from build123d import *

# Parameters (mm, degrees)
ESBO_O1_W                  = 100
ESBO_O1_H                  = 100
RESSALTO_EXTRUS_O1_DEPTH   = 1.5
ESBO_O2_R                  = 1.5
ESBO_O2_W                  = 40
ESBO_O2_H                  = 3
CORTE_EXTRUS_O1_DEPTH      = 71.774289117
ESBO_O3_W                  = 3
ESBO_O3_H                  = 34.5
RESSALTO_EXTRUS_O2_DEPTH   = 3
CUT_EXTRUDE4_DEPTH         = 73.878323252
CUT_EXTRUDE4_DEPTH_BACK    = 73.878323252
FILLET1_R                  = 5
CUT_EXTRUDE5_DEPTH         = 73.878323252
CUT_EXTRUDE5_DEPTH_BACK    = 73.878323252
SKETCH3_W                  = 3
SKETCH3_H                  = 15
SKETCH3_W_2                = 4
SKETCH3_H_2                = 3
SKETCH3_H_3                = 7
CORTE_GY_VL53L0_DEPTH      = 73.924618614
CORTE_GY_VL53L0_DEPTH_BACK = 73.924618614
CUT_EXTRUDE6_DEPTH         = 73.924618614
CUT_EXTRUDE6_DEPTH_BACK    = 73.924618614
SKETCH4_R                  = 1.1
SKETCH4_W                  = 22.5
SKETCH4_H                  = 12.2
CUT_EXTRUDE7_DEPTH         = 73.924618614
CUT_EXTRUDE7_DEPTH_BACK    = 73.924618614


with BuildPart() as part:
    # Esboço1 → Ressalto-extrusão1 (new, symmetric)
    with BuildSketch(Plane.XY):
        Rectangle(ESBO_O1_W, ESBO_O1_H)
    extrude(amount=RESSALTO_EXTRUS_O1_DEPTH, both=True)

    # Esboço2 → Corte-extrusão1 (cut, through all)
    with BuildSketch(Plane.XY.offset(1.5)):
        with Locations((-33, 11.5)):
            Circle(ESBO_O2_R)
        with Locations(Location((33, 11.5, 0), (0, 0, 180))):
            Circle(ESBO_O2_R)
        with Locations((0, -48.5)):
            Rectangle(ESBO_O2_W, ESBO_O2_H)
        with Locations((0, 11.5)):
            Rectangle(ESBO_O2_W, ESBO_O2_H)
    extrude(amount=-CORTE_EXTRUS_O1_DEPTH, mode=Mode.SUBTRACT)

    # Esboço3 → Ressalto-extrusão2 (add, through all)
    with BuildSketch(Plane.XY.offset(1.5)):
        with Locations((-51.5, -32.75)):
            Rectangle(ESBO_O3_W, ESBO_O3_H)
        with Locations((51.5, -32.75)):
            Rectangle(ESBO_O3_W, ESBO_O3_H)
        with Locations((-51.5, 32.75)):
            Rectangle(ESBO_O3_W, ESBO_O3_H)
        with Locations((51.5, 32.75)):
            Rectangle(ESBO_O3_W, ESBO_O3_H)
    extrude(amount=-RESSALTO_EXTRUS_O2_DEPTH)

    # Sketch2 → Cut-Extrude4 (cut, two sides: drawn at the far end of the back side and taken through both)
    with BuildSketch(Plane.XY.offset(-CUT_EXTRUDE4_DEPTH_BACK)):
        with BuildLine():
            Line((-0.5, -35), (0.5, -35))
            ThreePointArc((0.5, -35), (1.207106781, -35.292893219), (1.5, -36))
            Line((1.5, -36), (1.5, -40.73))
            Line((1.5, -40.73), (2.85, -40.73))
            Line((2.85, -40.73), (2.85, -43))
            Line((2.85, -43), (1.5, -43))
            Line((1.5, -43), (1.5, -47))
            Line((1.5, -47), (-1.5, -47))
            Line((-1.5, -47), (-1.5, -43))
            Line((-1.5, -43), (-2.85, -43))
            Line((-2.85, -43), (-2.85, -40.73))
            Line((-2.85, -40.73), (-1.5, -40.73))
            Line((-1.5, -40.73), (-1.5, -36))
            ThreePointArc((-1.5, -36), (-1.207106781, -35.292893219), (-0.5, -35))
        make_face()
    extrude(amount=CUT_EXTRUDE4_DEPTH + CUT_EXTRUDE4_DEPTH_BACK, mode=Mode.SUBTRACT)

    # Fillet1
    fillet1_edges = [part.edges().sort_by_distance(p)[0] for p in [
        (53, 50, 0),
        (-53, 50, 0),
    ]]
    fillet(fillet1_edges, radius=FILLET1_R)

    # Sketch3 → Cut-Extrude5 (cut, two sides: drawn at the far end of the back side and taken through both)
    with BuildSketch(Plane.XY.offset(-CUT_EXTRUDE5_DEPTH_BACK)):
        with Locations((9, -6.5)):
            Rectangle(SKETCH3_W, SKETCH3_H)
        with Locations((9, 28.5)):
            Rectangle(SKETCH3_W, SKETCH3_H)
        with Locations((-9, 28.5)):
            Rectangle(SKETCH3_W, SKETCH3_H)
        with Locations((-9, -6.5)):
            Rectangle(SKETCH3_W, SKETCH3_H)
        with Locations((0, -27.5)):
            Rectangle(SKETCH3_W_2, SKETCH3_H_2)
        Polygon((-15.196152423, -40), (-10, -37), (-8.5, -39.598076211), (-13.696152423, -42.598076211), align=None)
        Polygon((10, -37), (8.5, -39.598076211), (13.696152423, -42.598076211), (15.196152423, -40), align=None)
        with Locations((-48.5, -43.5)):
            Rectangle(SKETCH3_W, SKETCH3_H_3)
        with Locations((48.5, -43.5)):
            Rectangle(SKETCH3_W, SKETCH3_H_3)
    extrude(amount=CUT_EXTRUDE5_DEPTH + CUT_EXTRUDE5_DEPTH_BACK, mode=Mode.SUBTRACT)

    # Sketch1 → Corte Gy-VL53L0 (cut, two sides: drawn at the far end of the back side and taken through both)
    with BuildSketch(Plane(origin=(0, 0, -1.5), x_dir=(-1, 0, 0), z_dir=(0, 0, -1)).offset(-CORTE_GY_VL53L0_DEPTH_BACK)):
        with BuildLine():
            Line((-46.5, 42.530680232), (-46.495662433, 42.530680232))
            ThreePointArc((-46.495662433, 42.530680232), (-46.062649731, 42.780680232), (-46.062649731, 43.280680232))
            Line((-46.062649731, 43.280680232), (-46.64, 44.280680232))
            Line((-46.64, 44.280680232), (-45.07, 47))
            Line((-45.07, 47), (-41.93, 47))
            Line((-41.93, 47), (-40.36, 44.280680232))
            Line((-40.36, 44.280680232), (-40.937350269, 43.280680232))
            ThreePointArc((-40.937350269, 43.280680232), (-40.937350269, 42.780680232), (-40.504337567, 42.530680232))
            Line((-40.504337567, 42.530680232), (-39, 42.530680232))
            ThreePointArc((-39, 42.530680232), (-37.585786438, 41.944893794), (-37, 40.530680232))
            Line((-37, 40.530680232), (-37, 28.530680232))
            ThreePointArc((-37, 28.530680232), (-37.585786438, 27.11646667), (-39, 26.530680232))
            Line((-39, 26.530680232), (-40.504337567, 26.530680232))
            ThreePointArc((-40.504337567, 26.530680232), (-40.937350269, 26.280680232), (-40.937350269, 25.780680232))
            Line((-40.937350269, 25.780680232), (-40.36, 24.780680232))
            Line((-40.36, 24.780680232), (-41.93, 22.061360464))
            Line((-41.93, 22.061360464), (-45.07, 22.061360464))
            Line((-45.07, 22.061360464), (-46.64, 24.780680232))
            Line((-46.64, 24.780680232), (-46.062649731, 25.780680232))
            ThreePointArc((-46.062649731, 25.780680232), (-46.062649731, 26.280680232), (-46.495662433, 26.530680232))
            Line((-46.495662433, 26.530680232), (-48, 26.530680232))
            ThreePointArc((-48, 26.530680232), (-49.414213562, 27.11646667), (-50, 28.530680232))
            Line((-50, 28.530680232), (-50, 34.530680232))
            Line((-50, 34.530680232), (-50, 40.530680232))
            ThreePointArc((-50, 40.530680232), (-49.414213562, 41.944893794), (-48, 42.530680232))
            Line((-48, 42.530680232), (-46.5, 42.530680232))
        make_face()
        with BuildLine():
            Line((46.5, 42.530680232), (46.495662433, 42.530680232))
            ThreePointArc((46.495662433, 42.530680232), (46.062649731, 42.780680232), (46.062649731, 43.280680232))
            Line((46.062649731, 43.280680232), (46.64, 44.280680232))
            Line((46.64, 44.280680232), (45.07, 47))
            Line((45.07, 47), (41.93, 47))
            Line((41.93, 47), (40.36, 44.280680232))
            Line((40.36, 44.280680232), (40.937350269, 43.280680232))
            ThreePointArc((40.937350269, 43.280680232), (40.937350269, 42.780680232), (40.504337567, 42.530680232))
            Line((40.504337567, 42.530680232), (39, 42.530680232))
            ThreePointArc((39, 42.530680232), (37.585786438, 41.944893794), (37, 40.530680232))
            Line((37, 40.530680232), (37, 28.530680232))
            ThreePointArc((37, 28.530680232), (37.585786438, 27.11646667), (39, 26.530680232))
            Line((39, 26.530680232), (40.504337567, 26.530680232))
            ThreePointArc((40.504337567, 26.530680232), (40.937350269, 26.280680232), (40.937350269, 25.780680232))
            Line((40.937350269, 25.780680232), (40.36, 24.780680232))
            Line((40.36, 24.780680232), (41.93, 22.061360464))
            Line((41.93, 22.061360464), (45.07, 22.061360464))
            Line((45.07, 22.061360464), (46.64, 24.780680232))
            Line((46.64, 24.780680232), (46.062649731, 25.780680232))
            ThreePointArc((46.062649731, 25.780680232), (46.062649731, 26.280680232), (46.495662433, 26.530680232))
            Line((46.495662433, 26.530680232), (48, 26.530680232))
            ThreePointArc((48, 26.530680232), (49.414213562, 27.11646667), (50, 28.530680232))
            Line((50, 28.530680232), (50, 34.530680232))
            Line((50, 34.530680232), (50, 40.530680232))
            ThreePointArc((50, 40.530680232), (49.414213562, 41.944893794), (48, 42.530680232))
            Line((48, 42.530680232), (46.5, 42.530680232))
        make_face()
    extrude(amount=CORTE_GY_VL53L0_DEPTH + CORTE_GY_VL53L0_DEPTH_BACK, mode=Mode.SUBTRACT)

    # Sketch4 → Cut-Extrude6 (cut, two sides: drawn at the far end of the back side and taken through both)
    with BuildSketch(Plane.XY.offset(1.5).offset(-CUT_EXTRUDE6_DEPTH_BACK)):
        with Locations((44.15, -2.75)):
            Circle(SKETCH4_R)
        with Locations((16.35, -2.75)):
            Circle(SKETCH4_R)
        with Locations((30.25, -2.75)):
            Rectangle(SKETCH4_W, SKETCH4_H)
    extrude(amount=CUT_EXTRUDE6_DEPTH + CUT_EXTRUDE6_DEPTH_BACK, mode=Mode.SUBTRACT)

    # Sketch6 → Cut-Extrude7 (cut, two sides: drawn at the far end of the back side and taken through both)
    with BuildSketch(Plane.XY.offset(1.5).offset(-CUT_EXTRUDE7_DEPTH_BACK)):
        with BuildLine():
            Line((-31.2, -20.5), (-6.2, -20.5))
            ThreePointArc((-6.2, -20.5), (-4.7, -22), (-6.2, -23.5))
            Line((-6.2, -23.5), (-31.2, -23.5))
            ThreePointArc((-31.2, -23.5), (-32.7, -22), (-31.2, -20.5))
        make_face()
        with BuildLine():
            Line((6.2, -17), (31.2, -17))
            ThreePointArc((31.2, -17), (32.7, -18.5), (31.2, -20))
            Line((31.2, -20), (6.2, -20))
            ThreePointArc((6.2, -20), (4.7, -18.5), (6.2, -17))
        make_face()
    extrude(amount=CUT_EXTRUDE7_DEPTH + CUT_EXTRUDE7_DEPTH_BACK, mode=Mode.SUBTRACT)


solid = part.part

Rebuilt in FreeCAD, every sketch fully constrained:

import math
import FreeCAD as App
import Part
import Sketcher
Q = App.Units.Quantity


def edges_at(feature, points):
    """Names of the edges that pass closest to the given points."""
    edges = feature.Shape.Edges
    near = lambda p: min(range(len(edges)), key=lambda i: edges[i].distToShape(Part.Vertex(*p))[0])
    return sorted({f"Edge{near(p) + 1}" for p in points})


def add_polygon(sketch, points):
    """Adds a closed chain of lines whose ends are joined by coincident constraints."""
    first, n = sketch.GeometryCount, len(points)
    for a, b in zip(points, points[1:] + points[:1]):
        sketch.addGeometry(Part.LineSegment(App.Vector(*a, 0), App.Vector(*b, 0)), False)
    for i in range(n):
        sketch.addConstraint(Sketcher.Constraint("Coincident", first + i, 2, first + (i + 1) % n, 1))

doc = App.newDocument("Part")
body = doc.addObject("PartDesign::Body", "Body")

sketch1 = doc.addObject("Sketcher::SketchObject", "Sketch")
body.addObject(sketch1)
sketch1.AttachmentSupport = (doc.XY_Plane, [""])
sketch1.MapMode = "FlatFace"
add_polygon(sketch1, [(-50, 50), (-50, -50), (50, -50), (50, 50)])
sketch1.addConstraint([
    Sketcher.Constraint("Vertical", 0),
    Sketcher.Constraint("Horizontal", 1),
    Sketcher.Constraint("Vertical", 2),
    Sketcher.Constraint("Horizontal", 3),
    Sketcher.Constraint("Symmetric", 0, 2, 2, 2, -1, 1),
    Sketcher.Constraint("Equal", 3, 0),
    Sketcher.Constraint("DistanceX", 1, 1, 1, 2, 100.0),
])
pad1 = doc.addObject("PartDesign::Pad", "Pad")
body.addObject(pad1)
pad1.Profile = sketch1
pad1.Length = 3
pad1.Midplane = True

sketch2 = doc.addObject("Sketcher::SketchObject", "Sketch001")
body.addObject(sketch2)
sketch2.AttachmentSupport = (doc.XY_Plane, [""])
sketch2.MapMode = "FlatFace"
sketch2.AttachmentOffset = App.Placement(App.Vector(0, 0, 1.5), App.Rotation())
sketch2.addGeometry(Part.Circle(App.Vector(-33, 11.5, 0), App.Vector(0, 0, 1), 1.5), False)
sketch2.addGeometry(Part.Circle(App.Vector(33, 11.5, 0), App.Vector(0, 0, 1), 1.5), False)
add_polygon(sketch2, [(-20, -47), (-20, -50), (20, -50), (20, -47)])
add_polygon(sketch2, [(-20, 13), (-20, 10), (20, 10), (20, 13)])
sketch2.addConstraint([
    Sketcher.Constraint("Vertical", 2),
    Sketcher.Constraint("Horizontal", 3),
    Sketcher.Constraint("Vertical", 4),
    Sketcher.Constraint("Horizontal", 5),
    Sketcher.Constraint("Vertical", 6),
    Sketcher.Constraint("Horizontal", 7),
    Sketcher.Constraint("Vertical", 8),
    Sketcher.Constraint("Horizontal", 9),
    Sketcher.Constraint("Equal", 0, 1),
    Sketcher.Constraint("Symmetric", 0, 3, 1, 3, -2),
    Sketcher.Constraint("Vertical", 5, 2, 6, 2),
    Sketcher.Constraint("Vertical", 4, 2, 7, 2),
    Sketcher.Constraint("Equal", 4, 6),
    Sketcher.Constraint("Diameter", 0, 3.0),
    Sketcher.Constraint("DistanceX", 3, 1, 3, 2, 40.0),
    Sketcher.Constraint("DistanceY", 2, 2, 2, 1, 3.0),
    Sketcher.Constraint("DistanceX", 0, 3, -1, 1, 33.0),
    Sketcher.Constraint("DistanceX", 2, 2, -1, 1, 20.0),
    Sketcher.Constraint("DistanceY", 2, 2, -1, 1, 50.0),
    Sketcher.Constraint("DistanceY", -1, 1, 6, 2, 10.0),
    Sketcher.Constraint("DistanceY", -1, 1, 0, 3, 11.5),
])
pocket1 = doc.addObject("PartDesign::Pocket", "Pocket")
body.addObject(pocket1)
pocket1.Profile = sketch2
pocket1.Type = "ThroughAll"

sketch3 = doc.addObject("Sketcher::SketchObject", "Sketch002")
body.addObject(sketch3)
sketch3.AttachmentSupport = (doc.XY_Plane, [""])
sketch3.MapMode = "FlatFace"
sketch3.AttachmentOffset = App.Placement(App.Vector(0, 0, 1.5), App.Rotation())
add_polygon(sketch3, [(-53, -15.5), (-53, -50), (-50, -50), (-50, -15.5)])
add_polygon(sketch3, [(50, -15.5), (50, -50), (53, -50), (53, -15.5)])
add_polygon(sketch3, [(-53, 50), (-53, 15.5), (-50, 15.5), (-50, 50)])
add_polygon(sketch3, [(50, 50), (50, 15.5), (53, 15.5), (53, 50)])
sketch3.addConstraint([
    Sketcher.Constraint("Vertical", 0),
    Sketcher.Constraint("Horizontal", 1),
    Sketcher.Constraint("Vertical", 2),
    Sketcher.Constraint("Horizontal", 3),
    Sketcher.Constraint("Vertical", 4),
    Sketcher.Constraint("Horizontal", 5),
    Sketcher.Constraint("Vertical", 6),
    Sketcher.Constraint("Horizontal", 7),
    Sketcher.Constraint("Vertical", 8),
    Sketcher.Constraint("Horizontal", 9),
    Sketcher.Constraint("Vertical", 10),
    Sketcher.Constraint("Horizontal", 11),
    Sketcher.Constraint("Vertical", 12),
    Sketcher.Constraint("Horizontal", 13),
    Sketcher.Constraint("Vertical", 14),
    Sketcher.Constraint("Horizontal", 15),
    Sketcher.Constraint("Symmetric", 6, 2, 8, 2, -1, 1),
    Sketcher.Constraint("Symmetric", 4, 2, 10, 2, -1, 1),
    Sketcher.Constraint("Symmetric", 2, 2, 12, 2, -1, 1),
    Sketcher.Constraint("Symmetric", 0, 2, 14, 2, -1, 1),
    Sketcher.Constraint("Symmetric", 1, 2, 4, 2, -2),
    Sketcher.Constraint("Symmetric", 3, 2, 6, 2, -2),
    Sketcher.Constraint("DistanceX", 1, 1, 1, 2, 3.0),
    Sketcher.Constraint("DistanceY", 0, 2, 0, 1, 34.5),
    Sketcher.Constraint("DistanceX", 0, 2, -1, 1, 53.0),
    Sketcher.Constraint("DistanceY", 0, 2, -1, 1, 50.0),
])
pad2 = doc.addObject("PartDesign::Pad", "Pad001")
body.addObject(pad2)
pad2.Profile = sketch3
pad2.Type = "UpToLast"
pad2.Reversed = True

sketch4 = doc.addObject("Sketcher::SketchObject", "Sketch003")
body.addObject(sketch4)
sketch4.AttachmentSupport = (doc.XY_Plane, [""])
sketch4.MapMode = "FlatFace"
sketch4.addGeometry([
    Part.LineSegment(App.Vector(0.5, -35, 0), App.Vector(-0.5, -35, 0)),
    Part.ArcOfCircle(Part.Circle(App.Vector(-0.5, -36, 0), App.Vector(0, 0, 1), 1), math.radians(90), math.radians(180)),
    Part.LineSegment(App.Vector(-1.5, -36, 0), App.Vector(-1.5, -40.7, 0)),
    Part.LineSegment(App.Vector(-1.5, -40.7, 0), App.Vector(-2.9, -40.7, 0)),
    Part.LineSegment(App.Vector(-2.9, -40.7, 0), App.Vector(-2.9, -43, 0)),
    Part.LineSegment(App.Vector(-2.9, -43, 0), App.Vector(-1.5, -43, 0)),
    Part.LineSegment(App.Vector(-1.5, -43, 0), App.Vector(-1.5, -47, 0)),
    Part.LineSegment(App.Vector(-1.5, -47, 0), App.Vector(1.5, -47, 0)),
    Part.LineSegment(App.Vector(1.5, -47, 0), App.Vector(1.5, -43, 0)),
    Part.LineSegment(App.Vector(1.5, -43, 0), App.Vector(2.9, -43, 0)),
    Part.LineSegment(App.Vector(2.9, -43, 0), App.Vector(2.9, -40.7, 0)),
    Part.LineSegment(App.Vector(2.9, -40.7, 0), App.Vector(1.5, -40.7, 0)),
    Part.LineSegment(App.Vector(1.5, -40.7, 0), App.Vector(1.5, -36, 0)),
    Part.ArcOfCircle(Part.Circle(App.Vector(0.5, -36, 0), App.Vector(0, 0, 1), 1), math.radians(0), math.radians(90)),
], False)
sketch4.addConstraint([
    Sketcher.Constraint("Tangent", 0, 2, 1, 1),
    Sketcher.Constraint("Tangent", 1, 2, 2, 1),
    Sketcher.Constraint("Coincident", 2, 2, 3, 1),
    Sketcher.Constraint("Coincident", 3, 2, 4, 1),
    Sketcher.Constraint("Coincident", 4, 2, 5, 1),
    Sketcher.Constraint("Coincident", 5, 2, 6, 1),
    Sketcher.Constraint("Coincident", 6, 2, 7, 1),
    Sketcher.Constraint("Coincident", 7, 2, 8, 1),
    Sketcher.Constraint("Coincident", 8, 2, 9, 1),
    Sketcher.Constraint("Coincident", 9, 2, 10, 1),
    Sketcher.Constraint("Coincident", 10, 2, 11, 1),
    Sketcher.Constraint("Coincident", 11, 2, 12, 1),
    Sketcher.Constraint("Tangent", 12, 2, 13, 1),
    Sketcher.Constraint("Tangent", 13, 2, 0, 1),
    Sketcher.Constraint("Horizontal", 0),
    Sketcher.Constraint("Vertical", 2),
    Sketcher.Constraint("Horizontal", 3),
    Sketcher.Constraint("Vertical", 4),
    Sketcher.Constraint("Horizontal", 5),
    Sketcher.Constraint("Vertical", 6),
    Sketcher.Constraint("Horizontal", 7),
    Sketcher.Constraint("Vertical", 8),
    Sketcher.Constraint("Horizontal", 9),
    Sketcher.Constraint("Vertical", 10),
    Sketcher.Constraint("Horizontal", 11),
    Sketcher.Constraint("Vertical", 12),
    Sketcher.Constraint("Equal", 1, 13),
    Sketcher.Constraint("Symmetric", 5, 2, 8, 2, -2),
    Sketcher.Constraint("Symmetric", 3, 2, 10, 2, -2),
    Sketcher.Constraint("Vertical", 2, 2, 5, 2),
    Sketcher.Constraint("Vertical", 8, 2, 11, 2),
    Sketcher.Constraint("Radius", 1, 1.0),
    Sketcher.Constraint("DistanceX", 0, 2, 0, 1, 1.0),
    Sketcher.Constraint("DistanceY", 6, 2, 6, 1, 4.0),
    Sketcher.Constraint("DistanceY", 1, 3, -1, 1, 36.0),
    Sketcher.Constraint("DistanceY", 4, 2, -1, 1, 43.0),
    Sketcher.Constraint("DistanceX", 3, 2, 3, 1, 1.35),
    Sketcher.Constraint("DistanceY", 2, 2, 2, 1, 4.73),
])
pocket2 = doc.addObject("PartDesign::Pocket", "Pocket001")
body.addObject(pocket2)
pocket2.Profile = sketch4
pocket2.Type = "ThroughAll"
pocket2.Midplane = True
doc.recompute()

fillet = doc.addObject("PartDesign::Fillet", "Fillet")
body.addObject(fillet)
fillet.Base = (pocket2, edges_at(pocket2, [(53, 50, 0), (-53, 50, 0)]))
fillet.Radius = 5

sketch5 = doc.addObject("Sketcher::SketchObject", "Sketch004")
body.addObject(sketch5)
sketch5.AttachmentSupport = (doc.XY_Plane, [""])
sketch5.MapMode = "FlatFace"
add_polygon(sketch5, [(7.5, 1), (7.5, -14), (10.5, -14), (10.5, 1)])
add_polygon(sketch5, [(7.5, 36), (7.5, 21), (10.5, 21), (10.5, 36)])
add_polygon(sketch5, [(-10.5, 36), (-10.5, 21), (-7.5, 21), (-7.5, 36)])
add_polygon(sketch5, [(-10.5, 1), (-10.5, -14), (-7.5, -14), (-7.5, 1)])
add_polygon(sketch5, [(-2, -26), (-2, -29), (2, -29), (2, -26)])
add_polygon(sketch5, [(-10, -37), (-15.2, -40), (-13.7, -42.6), (-8.5, -39.6)])
add_polygon(sketch5, [(10, -37), (8.5, -39.6), (13.7, -42.6), (15.2, -40)])
add_polygon(sketch5, [(-50, -40), (-50, -47), (-47, -47), (-47, -40)])
add_polygon(sketch5, [(47, -40), (47, -47), (50, -47), (50, -40)])
sketch5.addConstraint([
    Sketcher.Constraint("Vertical", 0),
    Sketcher.Constraint("Horizontal", 1),
    Sketcher.Constraint("Vertical", 2),
    Sketcher.Constraint("Horizontal", 3),
    Sketcher.Constraint("Vertical", 4),
    Sketcher.Constraint("Horizontal", 5),
    Sketcher.Constraint("Vertical", 6),
    Sketcher.Constraint("Horizontal", 7),
    Sketcher.Constraint("Vertical", 8),
    Sketcher.Constraint("Horizontal", 9),
    Sketcher.Constraint("Vertical", 10),
    Sketcher.Constraint("Horizontal", 11),
    Sketcher.Constraint("Vertical", 12),
    Sketcher.Constraint("Horizontal", 13),
    Sketcher.Constraint("Vertical", 14),
    Sketcher.Constraint("Horizontal", 15),
    Sketcher.Constraint("Vertical", 16),
    Sketcher.Constraint("Horizontal", 17),
    Sketcher.Constraint("Vertical", 18),
    Sketcher.Constraint("Horizontal", 19),
    Sketcher.Constraint("Vertical", 28),
    Sketcher.Constraint("Horizontal", 29),
    Sketcher.Constraint("Vertical", 30),
    Sketcher.Constraint("Horizontal", 31),
    Sketcher.Constraint("Vertical", 32),
    Sketcher.Constraint("Horizontal", 33),
    Sketcher.Constraint("Vertical", 34),
    Sketcher.Constraint("Horizontal", 35),
    Sketcher.Constraint("Symmetric", 5, 2, 8, 2, -2),
    Sketcher.Constraint("Symmetric", 7, 2, 10, 2, -2),
    Sketcher.Constraint("Symmetric", 1, 2, 12, 2, -2),
    Sketcher.Constraint("Symmetric", 3, 2, 14, 2, -2),
    Sketcher.Constraint("Symmetric", 22, 2, 24, 2, -2),
    Sketcher.Constraint("Symmetric", 21, 2, 25, 2, -2),
    Sketcher.Constraint("Symmetric", 20, 2, 26, 2, -2),
    Sketcher.Constraint("Symmetric", 23, 2, 27, 2, -2),
    Sketcher.Constraint("Symmetric", 29, 2, 32, 2, -2),
    Sketcher.Constraint("Symmetric", 31, 2, 34, 2, -2),
    Sketcher.Constraint("Perpendicular", 20, 21),
    Sketcher.Constraint("Perpendicular", 21, 22),
    Sketcher.Constraint("Perpendicular", 22, 23),
    Sketcher.Constraint("Horizontal", 26, 2, 30, 2),
    Sketcher.Constraint("Vertical", 3, 2, 4, 2),
    Sketcher.Constraint("Vertical", 2, 2, 5, 2),
    Sketcher.Constraint("Equal", 15, 29),
    Sketcher.Constraint("Equal", 2, 4),
    Sketcher.Constraint("Equal", 35, 16),
    Sketcher.Constraint("DistanceX", 1, 1, 1, 2, 3.0),
    Sketcher.Constraint("DistanceX", 17, 1, 17, 2, 4.0),
    Sketcher.Constraint("DistanceY", 0, 2, 0, 1, 15.0),
    Sketcher.Constraint("DistanceY", 28, 2, 28, 1, 7.0),
    Sketcher.Constraint("Angle", 20, Q("-150 deg")),
    Sketcher.Constraint("Distance", 20, 6.0),
    Sketcher.Constraint("Distance", 21, 3.0),
    Sketcher.Constraint("DistanceY", 0, 2, -1, 1, 14.0),
    Sketcher.Constraint("DistanceY", -1, 1, 4, 2, 21.0),
    Sketcher.Constraint("DistanceX", 16, 2, -1, 1, 2.0),
    Sketcher.Constraint("DistanceY", 16, 2, -1, 1, 29.0),
    Sketcher.Constraint("DistanceY", 20, 2, -1, 1, 40.0),
    Sketcher.Constraint("DistanceX", 23, 2, -1, 1, 10.0),
    Sketcher.Constraint("DistanceX", 28, 2, -1, 1, 50.0),
    Sketcher.Constraint("DistanceX", 8, 2, 4, 2, 18.0),
])
pocket3 = doc.addObject("PartDesign::Pocket", "Pocket002")
body.addObject(pocket3)
pocket3.Profile = sketch5
pocket3.Type = "ThroughAll"
pocket3.Midplane = True

sketch6 = doc.addObject("Sketcher::SketchObject", "Sketch005")
body.addObject(sketch6)
sketch6.AttachmentSupport = (doc.XY_Plane, [""])
sketch6.MapMode = "FlatFace"
sketch6.AttachmentOffset = App.Placement(App.Vector(0, 0, -1.5), App.Rotation())
sketch6.addGeometry([
    Part.ArcOfCircle(Part.Circle(App.Vector(46.5, 43, 0), App.Vector(0, 0, 1), 0.5), math.radians(150), math.radians(270)),
    Part.LineSegment(App.Vector(46.5, 42.5, 0), App.Vector(48, 42.5, 0)),
    Part.ArcOfCircle(Part.Circle(App.Vector(48, 40.5, 0), App.Vector(0, 0, 1), 2), math.radians(0), math.radians(90)),
    Part.LineSegment(App.Vector(50, 40.5, 0), App.Vector(50, 28.5, 0)),
    Part.ArcOfCircle(Part.Circle(App.Vector(48, 28.5, 0), App.Vector(0, 0, 1), 2), math.radians(-90), math.radians(0)),
    Part.LineSegment(App.Vector(48, 26.5, 0), App.Vector(46.5, 26.5, 0)),
    Part.ArcOfCircle(Part.Circle(App.Vector(46.5, 26, 0), App.Vector(0, 0, 1), 0.5), math.radians(90), math.radians(210)),
    Part.LineSegment(App.Vector(46.1, 25.8, 0), App.Vector(46.6, 24.8, 0)),
    Part.LineSegment(App.Vector(46.6, 24.8, 0), App.Vector(45.1, 22.1, 0)),
    Part.LineSegment(App.Vector(45.1, 22.1, 0), App.Vector(41.9, 22.1, 0)),
    Part.LineSegment(App.Vector(41.9, 22.1, 0), App.Vector(40.4, 24.8, 0)),
    Part.LineSegment(App.Vector(40.4, 24.8, 0), App.Vector(40.9, 25.8, 0)),
    Part.ArcOfCircle(Part.Circle(App.Vector(40.5, 26, 0), App.Vector(0, 0, 1), 0.5), math.radians(-30), math.radians(90)),
    Part.LineSegment(App.Vector(40.5, 26.5, 0), App.Vector(39, 26.5, 0)),
    Part.ArcOfCircle(Part.Circle(App.Vector(39, 28.5, 0), App.Vector(0, 0, 1), 2), math.radians(-180), math.radians(-90)),
    Part.LineSegment(App.Vector(37, 28.5, 0), App.Vector(37, 40.5, 0)),
    Part.ArcOfCircle(Part.Circle(App.Vector(39, 40.5, 0), App.Vector(0, 0, 1), 2), math.radians(90), math.radians(180)),
    Part.LineSegment(App.Vector(39, 42.5, 0), App.Vector(40.5, 42.5, 0)),
    Part.ArcOfCircle(Part.Circle(App.Vector(40.5, 43, 0), App.Vector(0, 0, 1), 0.5), math.radians(-90), math.radians(30)),
    Part.LineSegment(App.Vector(40.9, 43.3, 0), App.Vector(40.4, 44.3, 0)),
    Part.LineSegment(App.Vector(40.4, 44.3, 0), App.Vector(41.9, 47, 0)),
    Part.LineSegment(App.Vector(41.9, 47, 0), App.Vector(45.1, 47, 0)),
    Part.LineSegment(App.Vector(45.1, 47, 0), App.Vector(46.6, 44.3, 0)),
    Part.LineSegment(App.Vector(46.6, 44.3, 0), App.Vector(46.1, 43.3, 0)),
    Part.ArcOfCircle(Part.Circle(App.Vector(-46.5, 43, 0), App.Vector(0, 0, 1), 0.5), math.radians(-90), math.radians(30)),
    Part.LineSegment(App.Vector(-46.1, 43.3, 0), App.Vector(-46.6, 44.3, 0)),
    Part.LineSegment(App.Vector(-46.6, 44.3, 0), App.Vector(-45.1, 47, 0)),
    Part.LineSegment(App.Vector(-45.1, 47, 0), App.Vector(-41.9, 47, 0)),
    Part.LineSegment(App.Vector(-41.9, 47, 0), App.Vector(-40.4, 44.3, 0)),
    Part.LineSegment(App.Vector(-40.4, 44.3, 0), App.Vector(-40.9, 43.3, 0)),
    Part.ArcOfCircle(Part.Circle(App.Vector(-40.5, 43, 0), App.Vector(0, 0, 1), 0.5), math.radians(150), math.radians(270)),
    Part.LineSegment(App.Vector(-40.5, 42.5, 0), App.Vector(-39, 42.5, 0)),
    Part.ArcOfCircle(Part.Circle(App.Vector(-39, 40.5, 0), App.Vector(0, 0, 1), 2), math.radians(0), math.radians(90)),
    Part.LineSegment(App.Vector(-37, 40.5, 0), App.Vector(-37, 28.5, 0)),
    Part.ArcOfCircle(Part.Circle(App.Vector(-39, 28.5, 0), App.Vector(0, 0, 1), 2), math.radians(-90), math.radians(0)),
    Part.LineSegment(App.Vector(-39, 26.5, 0), App.Vector(-40.5, 26.5, 0)),
    Part.ArcOfCircle(Part.Circle(App.Vector(-40.5, 26, 0), App.Vector(0, 0, 1), 0.5), math.radians(90), math.radians(210)),
    Part.LineSegment(App.Vector(-40.9, 25.8, 0), App.Vector(-40.4, 24.8, 0)),
    Part.LineSegment(App.Vector(-40.4, 24.8, 0), App.Vector(-41.9, 22.1, 0)),
    Part.LineSegment(App.Vector(-41.9, 22.1, 0), App.Vector(-45.1, 22.1, 0)),
    Part.LineSegment(App.Vector(-45.1, 22.1, 0), App.Vector(-46.6, 24.8, 0)),
    Part.LineSegment(App.Vector(-46.6, 24.8, 0), App.Vector(-46.1, 25.8, 0)),
    Part.ArcOfCircle(Part.Circle(App.Vector(-46.5, 26, 0), App.Vector(0, 0, 1), 0.5), math.radians(-30), math.radians(90)),
    Part.LineSegment(App.Vector(-46.5, 26.5, 0), App.Vector(-48, 26.5, 0)),
    Part.ArcOfCircle(Part.Circle(App.Vector(-48, 28.5, 0), App.Vector(0, 0, 1), 2), math.radians(-180), math.radians(-90)),
    Part.LineSegment(App.Vector(-50, 28.5, 0), App.Vector(-50, 40.5, 0)),
    Part.ArcOfCircle(Part.Circle(App.Vector(-48, 40.5, 0), App.Vector(0, 0, 1), 2), math.radians(90), math.radians(180)),
    Part.LineSegment(App.Vector(-48, 42.5, 0), App.Vector(-46.5, 42.5, 0)),
], False)
sketch6.addConstraint([
    Sketcher.Constraint("Tangent", 0, 2, 1, 1),
    Sketcher.Constraint("Tangent", 1, 2, 2, 2),
    Sketcher.Constraint("Tangent", 2, 1, 3, 1),
    Sketcher.Constraint("Tangent", 3, 2, 4, 2),
    Sketcher.Constraint("Tangent", 4, 1, 5, 1),
    Sketcher.Constraint("Tangent", 5, 2, 6, 1),
    Sketcher.Constraint("Tangent", 6, 2, 7, 1),
    Sketcher.Constraint("Coincident", 7, 2, 8, 1),
    Sketcher.Constraint("Coincident", 8, 2, 9, 1),
    Sketcher.Constraint("Coincident", 9, 2, 10, 1),
    Sketcher.Constraint("Coincident", 10, 2, 11, 1),
    Sketcher.Constraint("Tangent", 11, 2, 12, 1),
    Sketcher.Constraint("Tangent", 12, 2, 13, 1),
    Sketcher.Constraint("Tangent", 13, 2, 14, 2),
    Sketcher.Constraint("Tangent", 14, 1, 15, 1),
    Sketcher.Constraint("Tangent", 15, 2, 16, 2),
    Sketcher.Constraint("Tangent", 16, 1, 17, 1),
    Sketcher.Constraint("Tangent", 17, 2, 18, 1),
    Sketcher.Constraint("Tangent", 18, 2, 19, 1),
    Sketcher.Constraint("Coincident", 19, 2, 20, 1),
    Sketcher.Constraint("Coincident", 20, 2, 21, 1),
    Sketcher.Constraint("Coincident", 21, 2, 22, 1),
    Sketcher.Constraint("Coincident", 22, 2, 23, 1),
    Sketcher.Constraint("Tangent", 23, 2, 0, 1),
    Sketcher.Constraint("Tangent", 24, 2, 25, 1),
    Sketcher.Constraint("Coincident", 25, 2, 26, 1),
    Sketcher.Constraint("Coincident", 26, 2, 27, 1),
    Sketcher.Constraint("Coincident", 27, 2, 28, 1),
    Sketcher.Constraint("Coincident", 28, 2, 29, 1),
    Sketcher.Constraint("Tangent", 29, 2, 30, 1),
    Sketcher.Constraint("Tangent", 30, 2, 31, 1),
    Sketcher.Constraint("Tangent", 31, 2, 32, 2),
    Sketcher.Constraint("Tangent", 32, 1, 33, 1),
    Sketcher.Constraint("Tangent", 33, 2, 34, 2),
    Sketcher.Constraint("Tangent", 34, 1, 35, 1),
    Sketcher.Constraint("Tangent", 35, 2, 36, 1),
    Sketcher.Constraint("Tangent", 36, 2, 37, 1),
    Sketcher.Constraint("Coincident", 37, 2, 38, 1),
    Sketcher.Constraint("Coincident", 38, 2, 39, 1),
    Sketcher.Constraint("Coincident", 39, 2, 40, 1),
    Sketcher.Constraint("Coincident", 40, 2, 41, 1),
    Sketcher.Constraint("Tangent", 41, 2, 42, 1),
    Sketcher.Constraint("Tangent", 42, 2, 43, 1),
    Sketcher.Constraint("Tangent", 43, 2, 44, 2),
    Sketcher.Constraint("Tangent", 44, 1, 45, 1),
    Sketcher.Constraint("Tangent", 45, 2, 46, 2),
    Sketcher.Constraint("Tangent", 46, 1, 47, 1),
    Sketcher.Constraint("Tangent", 47, 2, 24, 1),
    Sketcher.Constraint("Horizontal", 1),
    Sketcher.Constraint("Vertical", 3),
    Sketcher.Constraint("Horizontal", 5),
    Sketcher.Constraint("Horizontal", 9),
    Sketcher.Constraint("Horizontal", 13),
    Sketcher.Constraint("Vertical", 15),
    Sketcher.Constraint("Horizontal", 17),
    Sketcher.Constraint("Horizontal", 21),
    Sketcher.Constraint("Horizontal", 27),
    Sketcher.Constraint("Horizontal", 31),
    Sketcher.Constraint("Vertical", 33),
    Sketcher.Constraint("Horizontal", 35),
    Sketcher.Constraint("Horizontal", 39),
    Sketcher.Constraint("Horizontal", 43),
    Sketcher.Constraint("Vertical", 45),
    Sketcher.Constraint("Horizontal", 47),
    Sketcher.Constraint("Equal", 2, 4),
    Sketcher.Constraint("Equal", 0, 6),
    Sketcher.Constraint("Equal", 6, 12),
    Sketcher.Constraint("Equal", 4, 14),
    Sketcher.Constraint("Equal", 14, 16),
    Sketcher.Constraint("Equal", 12, 18),
    Sketcher.Constraint("Equal", 18, 24),
    Sketcher.Constraint("Equal", 24, 30),
    Sketcher.Constraint("Equal", 16, 32),
    Sketcher.Constraint("Equal", 32, 34),
    Sketcher.Constraint("Equal", 30, 36),
    Sketcher.Constraint("Equal", 36, 42),
    Sketcher.Constraint("Equal", 34, 44),
    Sketcher.Constraint("Equal", 44, 46),
    Sketcher.Constraint("Symmetric", 0, 3, 24, 3, -2),
    Sketcher.Constraint("Symmetric", 18, 3, 30, 3, -2),
    Sketcher.Constraint("Symmetric", 14, 3, 34, 3, -2),
    Sketcher.Constraint("Symmetric", 6, 3, 42, 3, -2),
    Sketcher.Constraint("Symmetric", 22, 2, 25, 2, -2),
    Sketcher.Constraint("Symmetric", 21, 2, 26, 2, -2),
    Sketcher.Constraint("Symmetric", 19, 2, 28, 2, -2),
    Sketcher.Constraint("Symmetric", 11, 2, 36, 2, -2),
    Sketcher.Constraint("Symmetric", 9, 2, 38, 2, -2),
    Sketcher.Constraint("Symmetric", 7, 2, 40, 2, -2),
    Sketcher.Constraint("Parallel", 7, 10),
    Sketcher.Constraint("Parallel", 8, 11),
    Sketcher.Constraint("Parallel", 10, 19),
    Sketcher.Constraint("Parallel", 11, 20),
    Sketcher.Constraint("Parallel", 19, 22),
    Sketcher.Constraint("Parallel", 20, 23),
    Sketcher.Constraint("Parallel", 22, 25),
    Sketcher.Constraint("Parallel", 25, 28),
    Sketcher.Constraint("Parallel", 29, 38),
    Sketcher.Constraint("Parallel", 37, 40),
    Sketcher.Constraint("Horizontal", 6, 3, 12, 3),
    Sketcher.Constraint("Horizontal", 2, 3, 16, 3),
    Sketcher.Constraint("Horizontal", 7, 2, 10, 2),
    Sketcher.Constraint("Horizontal", 19, 2, 22, 2),
    Sketcher.Constraint("Vertical", 0, 3, 6, 3),
    Sketcher.Constraint("Vertical", 12, 3, 18, 3),
    Sketcher.Constraint("Vertical", 10, 2, 19, 2),
    Sketcher.Constraint("Vertical", 9, 2, 20, 2),
    Sketcher.Constraint("Equal", 5, 13),
    Sketcher.Constraint("Equal", 35, 43),
    Sketcher.Constraint("Radius", 2, 2.0),
    Sketcher.Constraint("Radius", 0, 0.5),
    Sketcher.Constraint("DistanceY", 3, 2, 3, 1, 12.0),
    Sketcher.Constraint("Angle", 7, Q("-60 deg")),
    Sketcher.Constraint("DistanceX", -1, 1, 2, 3, 48.0),
    Sketcher.Constraint("DistanceX", -1, 1, 14, 3, 39.0),
    Sketcher.Constraint("DistanceY", -1, 1, 20, 2, 47.0),
    Sketcher.Constraint("DistanceX", 9, 2, 9, 1, 3.14),
    Sketcher.Constraint("Distance", 8, 3.14),
    Sketcher.Constraint("Distance", 7, 1.154701),
])
pocket4 = doc.addObject("PartDesign::Pocket", "Pocket003")
body.addObject(pocket4)
pocket4.Profile = sketch6
pocket4.Type = "ThroughAll"
pocket4.Midplane = True

sketch7 = doc.addObject("Sketcher::SketchObject", "Sketch006")
body.addObject(sketch7)
sketch7.AttachmentSupport = (doc.XY_Plane, [""])
sketch7.MapMode = "FlatFace"
sketch7.AttachmentOffset = App.Placement(App.Vector(0, 0, 1.5), App.Rotation())
sketch7.addGeometry(Part.Circle(App.Vector(44.1, -2.8, 0), App.Vector(0, 0, 1), 1.1), False)
sketch7.addGeometry(Part.Circle(App.Vector(16.4, -2.8, 0), App.Vector(0, 0, 1), 1.1), False)
add_polygon(sketch7, [(19, 3.4), (19, -8.8), (41.5, -8.8), (41.5, 3.4)])
sketch7.addConstraint([
    Sketcher.Constraint("Vertical", 2),
    Sketcher.Constraint("Horizontal", 3),
    Sketcher.Constraint("Vertical", 4),
    Sketcher.Constraint("Horizontal", 5),
    Sketcher.Constraint("Equal", 0, 1),
    Sketcher.Constraint("Horizontal", 0, 3, 1, 3),
    Sketcher.Constraint("Diameter", 0, 2.2),
    Sketcher.Constraint("DistanceX", 3, 1, 3, 2, 22.5),
    Sketcher.Constraint("DistanceY", 2, 2, 2, 1, 12.2),
    Sketcher.Constraint("DistanceX", -1, 1, 2, 2, 19.0),
    Sketcher.Constraint("DistanceX", 1, 3, 0, 3, 27.8),
    Sketcher.Constraint("DistanceY", 2, 2, 1, 3, 6.1),
    Sketcher.Constraint("DistanceX", -1, 1, 0, 3, 44.15),
    Sketcher.Constraint("DistanceY", 0, 3, -1, 1, 2.75),
])
pocket5 = doc.addObject("PartDesign::Pocket", "Pocket004")
body.addObject(pocket5)
pocket5.Profile = sketch7
pocket5.Type = "ThroughAll"
pocket5.Midplane = True

sketch8 = doc.addObject("Sketcher::SketchObject", "Sketch007")
body.addObject(sketch8)
sketch8.AttachmentSupport = (doc.XY_Plane, [""])
sketch8.MapMode = "FlatFace"
sketch8.AttachmentOffset = App.Placement(App.Vector(0, 0, 1.5), App.Rotation())
sketch8.addGeometry([
    Part.LineSegment(App.Vector(-6.2, -20.5, 0), App.Vector(-31.2, -20.5, 0)),
    Part.ArcOfCircle(Part.Circle(App.Vector(-31.2, -22, 0), App.Vector(0, 0, 1), 1.5), math.radians(90), math.radians(270)),
    Part.LineSegment(App.Vector(-31.2, -23.5, 0), App.Vector(-6.2, -23.5, 0)),
    Part.ArcOfCircle(Part.Circle(App.Vector(-6.2, -22, 0), App.Vector(0, 0, 1), 1.5), math.radians(-90), math.radians(90)),
    Part.LineSegment(App.Vector(31.2, -17, 0), App.Vector(6.2, -17, 0)),
    Part.ArcOfCircle(Part.Circle(App.Vector(6.2, -18.5, 0), App.Vector(0, 0, 1), 1.5), math.radians(90), math.radians(270)),
    Part.LineSegment(App.Vector(6.2, -20, 0), App.Vector(31.2, -20, 0)),
    Part.ArcOfCircle(Part.Circle(App.Vector(31.2, -18.5, 0), App.Vector(0, 0, 1), 1.5), math.radians(-90), math.radians(90)),
], False)
sketch8.addConstraint([
    Sketcher.Constraint("Tangent", 0, 2, 1, 1),
    Sketcher.Constraint("Tangent", 1, 2, 2, 1),
    Sketcher.Constraint("Tangent", 2, 2, 3, 1),
    Sketcher.Constraint("Tangent", 3, 2, 0, 1),
    Sketcher.Constraint("Tangent", 4, 2, 5, 1),
    Sketcher.Constraint("Tangent", 5, 2, 6, 1),
    Sketcher.Constraint("Tangent", 6, 2, 7, 1),
    Sketcher.Constraint("Tangent", 7, 2, 4, 1),
    Sketcher.Constraint("Horizontal", 0),
    Sketcher.Constraint("Horizontal", 2),
    Sketcher.Constraint("Horizontal", 4),
    Sketcher.Constraint("Horizontal", 6),
    Sketcher.Constraint("Equal", 3, 5),
    Sketcher.Constraint("Equal", 2, 4),
    Sketcher.Constraint("Radius", 1, 1.5),
    Sketcher.Constraint("DistanceX", 0, 2, 0, 1, 25.0),
    Sketcher.Constraint("DistanceY", 1, 3, -1, 1, 22.0),
    Sketcher.Constraint("DistanceY", 4, 2, -1, 1, 17.0),
    Sketcher.Constraint("DistanceX", 1, 3, -1, 1, 31.2),
    Sketcher.Constraint("DistanceX", -1, 1, 5, 3, 6.2),
])
pocket6 = doc.addObject("PartDesign::Pocket", "Pocket005")
body.addObject(pocket6)
pocket6.Profile = sketch8
pocket6.Type = "ThroughAll"
pocket6.Midplane = True

doc.recompute()
